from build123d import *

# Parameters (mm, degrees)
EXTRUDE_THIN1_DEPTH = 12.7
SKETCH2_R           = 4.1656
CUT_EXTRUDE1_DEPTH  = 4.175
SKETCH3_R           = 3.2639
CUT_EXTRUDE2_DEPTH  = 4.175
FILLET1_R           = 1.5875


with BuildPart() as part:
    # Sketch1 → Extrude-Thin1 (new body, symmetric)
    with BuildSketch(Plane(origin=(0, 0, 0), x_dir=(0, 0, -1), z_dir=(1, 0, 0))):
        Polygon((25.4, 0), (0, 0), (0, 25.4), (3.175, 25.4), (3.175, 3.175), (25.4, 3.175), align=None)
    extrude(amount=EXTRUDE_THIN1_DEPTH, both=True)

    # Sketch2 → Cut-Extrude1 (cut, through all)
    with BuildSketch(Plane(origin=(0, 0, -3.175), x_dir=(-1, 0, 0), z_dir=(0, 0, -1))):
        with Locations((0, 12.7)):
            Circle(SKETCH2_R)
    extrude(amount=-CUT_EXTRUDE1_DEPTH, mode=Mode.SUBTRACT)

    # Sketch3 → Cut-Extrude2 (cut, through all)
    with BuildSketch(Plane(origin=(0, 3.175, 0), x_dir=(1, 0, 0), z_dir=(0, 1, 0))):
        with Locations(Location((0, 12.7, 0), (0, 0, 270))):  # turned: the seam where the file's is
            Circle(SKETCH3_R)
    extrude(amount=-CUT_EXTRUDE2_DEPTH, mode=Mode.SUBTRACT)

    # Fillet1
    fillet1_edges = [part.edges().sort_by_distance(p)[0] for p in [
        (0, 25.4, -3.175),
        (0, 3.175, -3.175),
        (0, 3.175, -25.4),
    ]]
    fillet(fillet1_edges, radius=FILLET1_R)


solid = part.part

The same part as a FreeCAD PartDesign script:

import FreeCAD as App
import Part
import Sketcher

V = App.Vector
Q = App.Units.Quantity


def edges_at(feature, points):
    """Names of the edges that pass closest to the given points."""
    edges = feature.Shape.Edges
    near = lambda p: min(range(len(edges)), key=lambda i: edges[i].distToShape(Part.Vertex(*p))[0])
    return sorted({f"Edge{near(p) + 1}" for p in points})


def add_polygon(sketch, points):
    """Adds a closed chain of lines whose ends are joined by coincident constraints."""
    first, n = sketch.GeometryCount, len(points)
    for a, b in zip(points, points[1:] + points[:1]):
        sketch.addGeometry(Part.LineSegment(App.Vector(*a, 0), App.Vector(*b, 0)), False)
    for i in range(n):
        sketch.addConstraint(Sketcher.Constraint("Coincident", first + i, 2, first + (i + 1) % n, 1))

doc = App.newDocument("Part")
params = doc.addObject("Spreadsheet::Sheet", "Params")
for row, (alias, value) in enumerate([
    ("sketch1_width", "1 in"),
    ("sketch1_width2", "0.125 in"),
    ("pad1_length", "1 in"),
    ("sketch2_diameter", "0.328 in"),
    ("sketch3_diameter", "0.257 in"),
    ("fillet_radius", "0.0625 in"),
], start=1):
    params.set(f"A{row}", alias)
    params.set(f"B{row}", "=" + value)
    params.setAlias(f"B{row}", alias)

body = doc.addObject("PartDesign::Body", "Body")

# Sketch on YZ plane
sketch1 = doc.addObject("Sketcher::SketchObject", "Sketch")
body.addObject(sketch1)
sketch1.AttachmentSupport = (doc.YZ_Plane, [""])
sketch1.MapMode = "FlatFace"
add_polygon(sketch1, [(0, 0), (0, -25.4), (3.2, -25.4), (3.2, -3.2), (25.4, -3.2), (25.4, 0)])  # lines 0-5
sketch1.addConstraint(Sketcher.Constraint("Vertical", 0))
sketch1.addConstraint(Sketcher.Constraint("Horizontal", 1))
sketch1.addConstraint(Sketcher.Constraint("Vertical", 2))
sketch1.addConstraint(Sketcher.Constraint("Horizontal", 3))
sketch1.addConstraint(Sketcher.Constraint("Vertical", 4))
sketch1.addConstraint(Sketcher.Constraint("Horizontal", 5))
sketch1.addConstraint(Sketcher.Constraint("Coincident", 5, 2, -1, 1))
sketch1.addConstraint(Sketcher.Constraint("Equal", 5, 0))
sketch1.addConstraint(Sketcher.Constraint("Equal", 3, 2))
sketch1.addConstraint(Sketcher.Constraint("DistanceX", 5, 2, 5, 1, Q("1 in")))
sketch1.addConstraint(Sketcher.Constraint("DistanceX", 1, 1, 1, 2, Q("0.125 in")))
sketch1.setExpression("Constraints[15]", "Params.sketch1_width")
sketch1.setExpression("Constraints[16]", "Params.sketch1_width2")
pad1 = doc.addObject("PartDesign::Pad", "Pad")
body.addObject(pad1)
pad1.Profile = sketch1
pad1.setExpression("Length", "Params.pad1_length")
pad1.Midplane = True

# Sketch on XY plane
sketch2 = doc.addObject("Sketcher::SketchObject", "Sketch001")
body.addObject(sketch2)
sketch2.AttachmentSupport = (doc.XY_Plane, [""])
sketch2.MapMode = "FlatFace"
sketch2.AttachmentOffset = App.Placement(V(0, 0, -0.125 * 25.4), App.Rotation())
sketch2.addGeometry(Part.Circle(V(0, 12.7, 0), V(0, 0, 1), 4.2), False)
sketch2.addConstraint(Sketcher.Constraint("PointOnObject", 0, 3, -2))
sketch2.addConstraint(Sketcher.Constraint("Diameter", 0, Q("0.328 in")))
sketch2.addConstraint(Sketcher.Constraint("DistanceY", -1, 1, 0, 3, Q("0.5 in")))
sketch2.setExpression("Constraints[1]", "Params.sketch2_diameter")
pocket1 = doc.addObject("PartDesign::Pocket", "Pocket")
body.addObject(pocket1)
pocket1.Profile = sketch2
pocket1.Type = "ThroughAll"
pocket1.Reversed = True

# Sketch on XZ plane
sketch3 = doc.addObject("Sketcher::SketchObject", "Sketch002")
body.addObject(sketch3)
sketch3.AttachmentSupport = (doc.XZ_Plane, [""])
sketch3.MapMode = "FlatFace"
sketch3.AttachmentOffset = App.Placement(V(0, 0, -0.125 * 25.4), App.Rotation())
sketch3.addGeometry(Part.Circle(V(0, -12.7, 0), V(0, 0, 1), 3.3), False)
sketch3.addConstraint(Sketcher.Constraint("PointOnObject", 0, 3, -2))
sketch3.addConstraint(Sketcher.Constraint("Diameter", 0, Q("0.257 in")))
sketch3.addConstraint(Sketcher.Constraint("DistanceY", 0, 3, -1, 1, Q("0.5 in")))
sketch3.setExpression("Constraints[1]", "Params.sketch3_diameter")
pocket2 = doc.addObject("PartDesign::Pocket", "Pocket001")
body.addObject(pocket2)
pocket2.Profile = sketch3
pocket2.Type = "ThroughAll"
pocket2.Reversed = True
doc.recompute()

fillet = doc.addObject("PartDesign::Fillet", "Fillet")
body.addObject(fillet)
fillet.Base = (pocket2, edges_at(pocket2, [(0, 25.4, -3.175), (0, 3.175, -3.175), (0, 3.175, -25.4)]))
fillet.setExpression("Radius", "Params.fillet_radius")

doc.recompute()
